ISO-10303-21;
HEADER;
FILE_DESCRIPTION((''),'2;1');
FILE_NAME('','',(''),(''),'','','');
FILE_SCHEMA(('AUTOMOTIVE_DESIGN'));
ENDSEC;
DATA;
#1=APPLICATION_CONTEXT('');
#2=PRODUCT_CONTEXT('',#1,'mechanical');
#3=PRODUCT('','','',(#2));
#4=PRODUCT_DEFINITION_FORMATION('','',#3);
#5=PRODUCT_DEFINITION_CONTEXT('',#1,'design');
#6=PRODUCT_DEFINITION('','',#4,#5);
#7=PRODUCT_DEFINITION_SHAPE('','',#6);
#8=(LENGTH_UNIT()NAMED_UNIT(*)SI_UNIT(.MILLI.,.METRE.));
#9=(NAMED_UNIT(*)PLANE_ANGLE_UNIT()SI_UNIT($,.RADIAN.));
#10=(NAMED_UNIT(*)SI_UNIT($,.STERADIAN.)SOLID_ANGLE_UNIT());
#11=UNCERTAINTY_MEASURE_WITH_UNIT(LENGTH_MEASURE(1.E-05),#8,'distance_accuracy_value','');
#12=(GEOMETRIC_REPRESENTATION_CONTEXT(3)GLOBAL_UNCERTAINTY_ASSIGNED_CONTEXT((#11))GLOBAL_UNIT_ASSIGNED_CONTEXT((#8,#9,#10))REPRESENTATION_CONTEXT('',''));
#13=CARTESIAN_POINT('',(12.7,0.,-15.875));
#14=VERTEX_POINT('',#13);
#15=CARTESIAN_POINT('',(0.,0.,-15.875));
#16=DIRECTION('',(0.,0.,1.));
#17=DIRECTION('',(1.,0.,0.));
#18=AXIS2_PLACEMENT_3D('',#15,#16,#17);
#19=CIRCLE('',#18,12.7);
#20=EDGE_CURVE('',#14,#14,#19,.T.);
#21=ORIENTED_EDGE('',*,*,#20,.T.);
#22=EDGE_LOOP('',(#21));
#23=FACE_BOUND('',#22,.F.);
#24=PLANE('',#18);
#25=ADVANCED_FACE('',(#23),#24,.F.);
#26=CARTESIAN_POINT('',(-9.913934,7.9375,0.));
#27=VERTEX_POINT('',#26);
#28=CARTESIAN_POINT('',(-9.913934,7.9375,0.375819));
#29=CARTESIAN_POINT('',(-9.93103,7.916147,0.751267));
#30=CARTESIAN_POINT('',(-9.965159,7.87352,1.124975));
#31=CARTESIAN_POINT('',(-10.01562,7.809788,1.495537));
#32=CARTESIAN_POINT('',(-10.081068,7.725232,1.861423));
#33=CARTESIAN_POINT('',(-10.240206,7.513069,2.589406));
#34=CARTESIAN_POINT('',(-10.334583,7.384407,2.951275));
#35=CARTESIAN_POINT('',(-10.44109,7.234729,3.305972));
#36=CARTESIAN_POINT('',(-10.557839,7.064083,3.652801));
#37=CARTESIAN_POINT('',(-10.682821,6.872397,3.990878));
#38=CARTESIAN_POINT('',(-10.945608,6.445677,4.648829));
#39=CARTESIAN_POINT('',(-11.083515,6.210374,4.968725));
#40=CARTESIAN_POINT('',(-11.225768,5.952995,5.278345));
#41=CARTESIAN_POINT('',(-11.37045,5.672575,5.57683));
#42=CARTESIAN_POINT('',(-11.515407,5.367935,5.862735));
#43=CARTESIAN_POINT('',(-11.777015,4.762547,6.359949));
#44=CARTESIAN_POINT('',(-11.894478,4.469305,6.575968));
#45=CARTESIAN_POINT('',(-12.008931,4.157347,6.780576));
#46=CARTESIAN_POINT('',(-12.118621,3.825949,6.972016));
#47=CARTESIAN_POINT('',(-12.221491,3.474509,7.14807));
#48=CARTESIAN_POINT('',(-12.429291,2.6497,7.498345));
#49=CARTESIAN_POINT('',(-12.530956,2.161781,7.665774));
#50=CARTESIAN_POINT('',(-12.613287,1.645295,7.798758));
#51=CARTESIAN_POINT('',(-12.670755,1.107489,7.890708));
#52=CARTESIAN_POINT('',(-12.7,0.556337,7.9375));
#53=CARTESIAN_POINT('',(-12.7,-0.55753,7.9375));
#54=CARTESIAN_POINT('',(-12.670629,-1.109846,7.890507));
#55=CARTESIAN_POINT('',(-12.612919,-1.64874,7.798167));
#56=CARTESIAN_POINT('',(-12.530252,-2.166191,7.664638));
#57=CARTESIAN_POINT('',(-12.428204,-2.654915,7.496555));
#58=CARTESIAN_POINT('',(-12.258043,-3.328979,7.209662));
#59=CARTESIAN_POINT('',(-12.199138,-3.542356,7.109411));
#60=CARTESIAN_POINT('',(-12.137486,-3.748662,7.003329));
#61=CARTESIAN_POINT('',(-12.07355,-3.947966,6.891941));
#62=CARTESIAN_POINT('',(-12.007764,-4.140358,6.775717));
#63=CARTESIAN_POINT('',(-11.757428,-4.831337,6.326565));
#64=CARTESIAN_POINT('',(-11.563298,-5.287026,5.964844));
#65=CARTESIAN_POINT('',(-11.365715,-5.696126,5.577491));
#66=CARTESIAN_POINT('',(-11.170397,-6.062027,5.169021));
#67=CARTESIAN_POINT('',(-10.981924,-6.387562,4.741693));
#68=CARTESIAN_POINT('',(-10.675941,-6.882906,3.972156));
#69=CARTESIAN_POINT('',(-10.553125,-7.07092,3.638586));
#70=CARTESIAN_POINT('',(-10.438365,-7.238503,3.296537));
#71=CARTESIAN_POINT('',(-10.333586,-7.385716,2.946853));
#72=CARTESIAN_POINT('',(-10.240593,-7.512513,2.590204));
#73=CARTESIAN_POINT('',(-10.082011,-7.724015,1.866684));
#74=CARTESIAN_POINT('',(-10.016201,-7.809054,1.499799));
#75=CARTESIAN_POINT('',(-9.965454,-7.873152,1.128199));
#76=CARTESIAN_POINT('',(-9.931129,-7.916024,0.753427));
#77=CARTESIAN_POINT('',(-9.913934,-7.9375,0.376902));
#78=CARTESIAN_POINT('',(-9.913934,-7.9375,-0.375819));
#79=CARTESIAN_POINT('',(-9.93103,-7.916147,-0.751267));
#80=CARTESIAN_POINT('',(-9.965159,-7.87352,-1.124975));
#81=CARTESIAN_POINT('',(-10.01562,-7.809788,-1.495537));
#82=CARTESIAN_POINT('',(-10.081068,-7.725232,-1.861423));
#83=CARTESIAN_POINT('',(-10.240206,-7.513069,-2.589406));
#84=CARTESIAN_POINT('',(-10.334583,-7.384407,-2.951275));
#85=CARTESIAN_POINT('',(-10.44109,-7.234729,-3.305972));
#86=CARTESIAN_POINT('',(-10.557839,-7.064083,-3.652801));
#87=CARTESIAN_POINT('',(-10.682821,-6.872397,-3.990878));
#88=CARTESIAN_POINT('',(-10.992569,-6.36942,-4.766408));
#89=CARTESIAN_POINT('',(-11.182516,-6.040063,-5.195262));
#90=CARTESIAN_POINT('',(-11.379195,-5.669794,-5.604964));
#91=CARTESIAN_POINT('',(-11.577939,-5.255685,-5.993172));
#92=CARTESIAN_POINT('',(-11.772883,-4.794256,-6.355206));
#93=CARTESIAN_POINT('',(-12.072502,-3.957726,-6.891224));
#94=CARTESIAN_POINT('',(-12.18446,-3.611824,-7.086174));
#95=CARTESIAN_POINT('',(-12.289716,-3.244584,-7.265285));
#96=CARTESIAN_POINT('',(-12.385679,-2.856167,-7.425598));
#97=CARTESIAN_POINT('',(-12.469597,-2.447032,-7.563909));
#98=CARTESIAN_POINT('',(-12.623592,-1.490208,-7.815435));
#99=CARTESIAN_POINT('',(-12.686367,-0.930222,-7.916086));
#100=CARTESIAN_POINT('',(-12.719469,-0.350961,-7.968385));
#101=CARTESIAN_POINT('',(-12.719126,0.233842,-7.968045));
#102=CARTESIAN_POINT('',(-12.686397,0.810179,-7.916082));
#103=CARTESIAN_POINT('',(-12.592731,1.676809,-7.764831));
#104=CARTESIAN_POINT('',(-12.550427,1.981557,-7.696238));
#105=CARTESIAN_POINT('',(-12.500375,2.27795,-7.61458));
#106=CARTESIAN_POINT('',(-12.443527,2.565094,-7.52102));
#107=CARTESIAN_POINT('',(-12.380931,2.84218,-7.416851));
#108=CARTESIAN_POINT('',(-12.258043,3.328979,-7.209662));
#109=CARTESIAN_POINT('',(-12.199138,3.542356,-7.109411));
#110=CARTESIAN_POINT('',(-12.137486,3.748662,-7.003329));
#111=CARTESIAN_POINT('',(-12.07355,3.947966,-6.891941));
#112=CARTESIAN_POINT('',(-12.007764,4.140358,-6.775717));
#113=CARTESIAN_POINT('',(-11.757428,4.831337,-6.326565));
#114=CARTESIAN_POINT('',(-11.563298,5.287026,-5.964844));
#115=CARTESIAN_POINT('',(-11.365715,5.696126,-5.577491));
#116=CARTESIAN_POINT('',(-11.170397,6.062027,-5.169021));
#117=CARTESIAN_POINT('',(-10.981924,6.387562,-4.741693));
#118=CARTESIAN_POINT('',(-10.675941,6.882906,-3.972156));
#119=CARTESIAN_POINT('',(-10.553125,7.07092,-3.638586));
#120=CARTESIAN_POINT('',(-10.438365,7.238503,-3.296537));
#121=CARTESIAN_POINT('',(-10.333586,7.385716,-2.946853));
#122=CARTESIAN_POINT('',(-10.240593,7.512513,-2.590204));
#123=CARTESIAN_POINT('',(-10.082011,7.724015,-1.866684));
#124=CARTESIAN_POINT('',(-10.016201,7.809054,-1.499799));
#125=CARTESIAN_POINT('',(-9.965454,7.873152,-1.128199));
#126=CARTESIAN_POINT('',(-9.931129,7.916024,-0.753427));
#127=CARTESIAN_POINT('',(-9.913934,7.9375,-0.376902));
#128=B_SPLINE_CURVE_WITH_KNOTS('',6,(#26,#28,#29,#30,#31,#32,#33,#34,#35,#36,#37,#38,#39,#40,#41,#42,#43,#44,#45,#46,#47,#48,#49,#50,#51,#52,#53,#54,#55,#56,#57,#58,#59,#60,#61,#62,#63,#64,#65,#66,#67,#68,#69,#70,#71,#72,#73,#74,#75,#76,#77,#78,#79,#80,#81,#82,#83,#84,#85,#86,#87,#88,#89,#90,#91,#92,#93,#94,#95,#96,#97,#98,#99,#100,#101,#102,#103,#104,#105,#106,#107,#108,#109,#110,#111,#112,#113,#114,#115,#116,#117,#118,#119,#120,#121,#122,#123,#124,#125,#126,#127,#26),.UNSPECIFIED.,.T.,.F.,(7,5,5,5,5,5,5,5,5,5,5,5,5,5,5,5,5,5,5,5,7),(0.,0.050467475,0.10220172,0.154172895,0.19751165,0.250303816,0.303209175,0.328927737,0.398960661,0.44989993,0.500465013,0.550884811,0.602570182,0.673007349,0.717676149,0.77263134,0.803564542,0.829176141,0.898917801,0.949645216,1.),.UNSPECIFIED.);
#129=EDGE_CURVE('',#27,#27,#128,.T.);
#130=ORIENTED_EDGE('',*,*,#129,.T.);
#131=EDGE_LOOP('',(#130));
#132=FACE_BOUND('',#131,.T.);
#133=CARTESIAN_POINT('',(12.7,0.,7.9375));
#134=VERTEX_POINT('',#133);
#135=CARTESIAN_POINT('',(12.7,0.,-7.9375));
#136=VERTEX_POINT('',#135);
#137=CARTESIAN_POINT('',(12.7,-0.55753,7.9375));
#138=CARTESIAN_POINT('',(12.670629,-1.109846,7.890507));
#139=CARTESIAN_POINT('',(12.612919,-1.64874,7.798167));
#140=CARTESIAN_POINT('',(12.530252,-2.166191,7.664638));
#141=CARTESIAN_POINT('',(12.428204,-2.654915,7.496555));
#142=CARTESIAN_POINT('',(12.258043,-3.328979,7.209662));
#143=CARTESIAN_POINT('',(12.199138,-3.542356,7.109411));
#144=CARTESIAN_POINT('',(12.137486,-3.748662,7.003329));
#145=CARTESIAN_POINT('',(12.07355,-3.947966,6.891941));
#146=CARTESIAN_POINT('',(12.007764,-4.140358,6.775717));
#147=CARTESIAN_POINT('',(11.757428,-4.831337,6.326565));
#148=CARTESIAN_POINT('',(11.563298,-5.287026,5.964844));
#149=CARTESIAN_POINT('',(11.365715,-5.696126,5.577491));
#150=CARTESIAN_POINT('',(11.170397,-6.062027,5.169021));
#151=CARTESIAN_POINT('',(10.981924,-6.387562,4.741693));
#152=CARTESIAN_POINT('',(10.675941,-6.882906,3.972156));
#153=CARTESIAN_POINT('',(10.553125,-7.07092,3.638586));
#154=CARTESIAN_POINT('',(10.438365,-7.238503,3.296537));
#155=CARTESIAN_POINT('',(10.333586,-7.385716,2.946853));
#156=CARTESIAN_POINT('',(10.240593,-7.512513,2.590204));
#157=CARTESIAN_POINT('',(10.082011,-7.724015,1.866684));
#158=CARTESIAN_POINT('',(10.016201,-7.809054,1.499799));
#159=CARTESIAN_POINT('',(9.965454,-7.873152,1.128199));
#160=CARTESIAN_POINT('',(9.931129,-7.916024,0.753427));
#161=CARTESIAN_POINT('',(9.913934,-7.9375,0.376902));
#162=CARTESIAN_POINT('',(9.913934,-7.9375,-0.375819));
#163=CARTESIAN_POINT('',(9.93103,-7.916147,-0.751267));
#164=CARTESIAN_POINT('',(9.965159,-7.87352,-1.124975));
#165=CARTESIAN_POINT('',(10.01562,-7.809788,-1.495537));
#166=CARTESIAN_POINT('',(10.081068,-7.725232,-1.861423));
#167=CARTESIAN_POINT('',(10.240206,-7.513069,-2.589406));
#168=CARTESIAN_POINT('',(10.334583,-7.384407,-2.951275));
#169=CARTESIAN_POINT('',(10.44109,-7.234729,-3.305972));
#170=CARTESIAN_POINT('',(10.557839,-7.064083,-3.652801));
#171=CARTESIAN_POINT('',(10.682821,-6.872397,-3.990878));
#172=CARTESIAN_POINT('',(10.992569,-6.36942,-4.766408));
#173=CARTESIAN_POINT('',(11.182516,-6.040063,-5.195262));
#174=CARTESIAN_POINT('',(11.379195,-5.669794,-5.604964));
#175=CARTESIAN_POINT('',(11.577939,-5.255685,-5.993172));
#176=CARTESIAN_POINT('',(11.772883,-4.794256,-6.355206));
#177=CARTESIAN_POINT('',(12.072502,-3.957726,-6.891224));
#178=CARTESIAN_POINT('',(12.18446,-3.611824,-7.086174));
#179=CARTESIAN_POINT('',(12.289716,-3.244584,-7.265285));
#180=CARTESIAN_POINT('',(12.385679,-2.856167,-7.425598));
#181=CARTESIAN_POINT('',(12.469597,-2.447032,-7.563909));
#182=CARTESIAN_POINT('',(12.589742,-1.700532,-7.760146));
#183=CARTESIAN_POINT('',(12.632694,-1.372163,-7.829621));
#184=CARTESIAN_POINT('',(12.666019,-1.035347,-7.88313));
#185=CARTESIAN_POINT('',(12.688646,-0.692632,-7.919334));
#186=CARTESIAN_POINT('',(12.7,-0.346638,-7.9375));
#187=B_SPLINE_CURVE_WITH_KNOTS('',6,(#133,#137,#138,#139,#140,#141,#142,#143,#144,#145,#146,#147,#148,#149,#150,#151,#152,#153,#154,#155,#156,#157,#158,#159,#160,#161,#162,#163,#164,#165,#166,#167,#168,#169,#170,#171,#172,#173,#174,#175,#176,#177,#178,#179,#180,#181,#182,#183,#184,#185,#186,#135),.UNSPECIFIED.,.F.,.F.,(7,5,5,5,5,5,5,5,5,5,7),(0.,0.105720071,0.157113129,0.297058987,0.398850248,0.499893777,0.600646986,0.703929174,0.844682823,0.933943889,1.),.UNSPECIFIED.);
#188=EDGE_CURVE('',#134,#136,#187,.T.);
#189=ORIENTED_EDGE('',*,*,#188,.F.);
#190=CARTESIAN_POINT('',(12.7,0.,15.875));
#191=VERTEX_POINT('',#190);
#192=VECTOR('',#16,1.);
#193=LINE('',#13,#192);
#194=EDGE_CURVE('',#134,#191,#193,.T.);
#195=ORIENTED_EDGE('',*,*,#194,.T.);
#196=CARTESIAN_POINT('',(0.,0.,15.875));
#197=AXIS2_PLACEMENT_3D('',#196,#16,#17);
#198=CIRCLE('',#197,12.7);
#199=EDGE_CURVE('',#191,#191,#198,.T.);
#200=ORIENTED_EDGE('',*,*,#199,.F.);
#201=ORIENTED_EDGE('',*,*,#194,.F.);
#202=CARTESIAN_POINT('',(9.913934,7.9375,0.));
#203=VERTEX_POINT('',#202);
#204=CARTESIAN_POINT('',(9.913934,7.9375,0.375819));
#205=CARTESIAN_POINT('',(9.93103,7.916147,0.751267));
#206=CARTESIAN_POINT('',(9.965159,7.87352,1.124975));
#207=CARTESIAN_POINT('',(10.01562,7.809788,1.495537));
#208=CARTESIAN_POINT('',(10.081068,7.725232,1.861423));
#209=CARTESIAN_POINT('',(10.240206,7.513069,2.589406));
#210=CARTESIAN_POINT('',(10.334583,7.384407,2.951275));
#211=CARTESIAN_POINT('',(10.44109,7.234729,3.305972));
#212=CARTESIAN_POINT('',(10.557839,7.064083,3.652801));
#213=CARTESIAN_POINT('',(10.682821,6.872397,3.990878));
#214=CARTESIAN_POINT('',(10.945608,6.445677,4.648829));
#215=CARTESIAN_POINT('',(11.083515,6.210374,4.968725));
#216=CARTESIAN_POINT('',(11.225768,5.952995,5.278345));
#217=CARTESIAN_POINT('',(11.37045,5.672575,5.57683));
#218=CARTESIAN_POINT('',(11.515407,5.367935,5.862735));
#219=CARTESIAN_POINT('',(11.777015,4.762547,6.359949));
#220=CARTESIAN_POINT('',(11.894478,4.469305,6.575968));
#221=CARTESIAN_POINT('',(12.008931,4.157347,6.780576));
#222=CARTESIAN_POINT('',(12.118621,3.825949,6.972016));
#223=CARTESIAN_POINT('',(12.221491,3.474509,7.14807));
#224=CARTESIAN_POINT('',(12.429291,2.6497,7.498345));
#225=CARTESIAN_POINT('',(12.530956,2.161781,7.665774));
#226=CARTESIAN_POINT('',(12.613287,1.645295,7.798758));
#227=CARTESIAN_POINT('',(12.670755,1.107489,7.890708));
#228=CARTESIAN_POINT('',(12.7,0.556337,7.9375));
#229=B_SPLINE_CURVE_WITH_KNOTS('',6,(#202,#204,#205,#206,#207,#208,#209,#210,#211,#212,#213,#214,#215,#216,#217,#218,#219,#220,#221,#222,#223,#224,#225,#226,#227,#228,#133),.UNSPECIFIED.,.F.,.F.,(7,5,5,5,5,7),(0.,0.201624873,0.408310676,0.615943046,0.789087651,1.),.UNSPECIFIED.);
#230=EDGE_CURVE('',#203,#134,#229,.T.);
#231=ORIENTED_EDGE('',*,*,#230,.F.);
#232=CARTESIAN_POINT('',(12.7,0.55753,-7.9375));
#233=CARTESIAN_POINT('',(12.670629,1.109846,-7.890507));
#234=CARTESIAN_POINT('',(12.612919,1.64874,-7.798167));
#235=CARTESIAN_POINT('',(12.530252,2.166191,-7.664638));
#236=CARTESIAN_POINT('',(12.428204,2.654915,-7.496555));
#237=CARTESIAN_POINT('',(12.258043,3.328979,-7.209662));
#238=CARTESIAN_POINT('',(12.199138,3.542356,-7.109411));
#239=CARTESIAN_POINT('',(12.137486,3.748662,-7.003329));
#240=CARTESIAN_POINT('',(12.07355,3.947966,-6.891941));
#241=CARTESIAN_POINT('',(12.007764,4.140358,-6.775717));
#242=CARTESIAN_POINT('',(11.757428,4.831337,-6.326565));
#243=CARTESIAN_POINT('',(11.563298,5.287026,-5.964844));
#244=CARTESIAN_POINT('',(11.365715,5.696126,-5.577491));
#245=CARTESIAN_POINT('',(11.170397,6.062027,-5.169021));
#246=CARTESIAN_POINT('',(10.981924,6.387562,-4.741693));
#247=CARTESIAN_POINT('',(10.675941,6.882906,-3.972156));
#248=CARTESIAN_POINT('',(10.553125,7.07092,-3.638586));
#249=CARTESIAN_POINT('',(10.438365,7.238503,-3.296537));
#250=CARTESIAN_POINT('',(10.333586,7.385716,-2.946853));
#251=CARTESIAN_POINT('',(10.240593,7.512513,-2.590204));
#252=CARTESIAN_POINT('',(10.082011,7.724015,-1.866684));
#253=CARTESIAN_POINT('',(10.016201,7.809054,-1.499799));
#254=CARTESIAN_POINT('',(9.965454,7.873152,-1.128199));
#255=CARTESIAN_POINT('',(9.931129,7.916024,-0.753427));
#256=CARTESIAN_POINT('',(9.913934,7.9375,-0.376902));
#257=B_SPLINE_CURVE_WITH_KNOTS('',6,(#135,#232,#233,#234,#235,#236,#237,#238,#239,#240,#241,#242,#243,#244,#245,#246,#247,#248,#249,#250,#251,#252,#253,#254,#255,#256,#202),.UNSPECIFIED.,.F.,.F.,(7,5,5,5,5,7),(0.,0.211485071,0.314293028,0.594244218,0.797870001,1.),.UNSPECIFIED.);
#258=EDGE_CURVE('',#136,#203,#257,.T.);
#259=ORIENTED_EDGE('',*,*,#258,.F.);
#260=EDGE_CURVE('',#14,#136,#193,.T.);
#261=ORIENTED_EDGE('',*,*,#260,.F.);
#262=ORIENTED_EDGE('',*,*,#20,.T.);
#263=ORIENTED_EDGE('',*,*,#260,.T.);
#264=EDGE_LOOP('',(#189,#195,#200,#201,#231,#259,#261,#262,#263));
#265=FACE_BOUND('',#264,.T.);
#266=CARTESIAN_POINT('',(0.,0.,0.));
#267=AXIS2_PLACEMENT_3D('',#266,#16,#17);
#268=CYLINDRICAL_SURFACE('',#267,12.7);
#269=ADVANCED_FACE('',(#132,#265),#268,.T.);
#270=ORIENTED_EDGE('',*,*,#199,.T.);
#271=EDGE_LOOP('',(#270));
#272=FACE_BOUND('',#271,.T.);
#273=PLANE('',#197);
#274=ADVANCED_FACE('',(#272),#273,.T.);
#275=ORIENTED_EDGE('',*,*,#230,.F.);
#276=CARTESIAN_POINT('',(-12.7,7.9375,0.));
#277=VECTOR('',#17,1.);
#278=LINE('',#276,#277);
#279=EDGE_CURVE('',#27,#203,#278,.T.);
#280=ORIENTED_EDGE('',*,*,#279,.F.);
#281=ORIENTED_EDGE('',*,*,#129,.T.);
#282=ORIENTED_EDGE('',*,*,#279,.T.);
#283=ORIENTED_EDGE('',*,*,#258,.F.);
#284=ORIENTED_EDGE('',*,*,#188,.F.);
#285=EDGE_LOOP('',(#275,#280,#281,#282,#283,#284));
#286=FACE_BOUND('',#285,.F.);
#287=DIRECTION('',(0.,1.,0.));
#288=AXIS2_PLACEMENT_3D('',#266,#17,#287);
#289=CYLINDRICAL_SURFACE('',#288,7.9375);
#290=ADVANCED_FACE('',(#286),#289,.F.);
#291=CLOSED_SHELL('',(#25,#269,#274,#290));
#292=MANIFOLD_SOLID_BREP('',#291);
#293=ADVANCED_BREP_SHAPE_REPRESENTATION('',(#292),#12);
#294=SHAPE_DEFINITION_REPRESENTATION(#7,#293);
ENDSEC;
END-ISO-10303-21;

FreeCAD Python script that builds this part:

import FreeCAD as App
import Part
import Sketcher

V = App.Vector
Q = App.Units.Quantity

doc = App.newDocument("Part")
body = doc.addObject("PartDesign::Body", "Body")

sketch1 = body.newObject("Sketcher::SketchObject", "Sketch")
sketch1.AttachmentSupport = (doc.getObject("XY_Plane"), [""])
sketch1.MapMode = "FlatFace"
sketch1.addGeometry(Part.Circle(V(0, 0, 0), V(0, 0, 1), 12.7), False)
sketch1.addConstraint([
    Sketcher.Constraint("Coincident", 0, 3, -1, 1),
    Sketcher.Constraint("Diameter", 0, Q("1 in")),
])
pad1 = body.newObject("PartDesign::Pad", "Pad")
pad1.Profile = sketch1
pad1.Length = Q("1.25 in")
pad1.Midplane = True

sketch2 = body.newObject("Sketcher::SketchObject", "Sketch001")
sketch2.AttachmentSupport = (doc.getObject("YZ_Plane"), [""])
sketch2.MapMode = "FlatFace"
sketch2.addGeometry(Part.Circle(V(0, 0, 0), V(0, 0, 1), 7.9375), False)
sketch2.addConstraint([
    Sketcher.Constraint("Coincident", 0, 3, -1, 1),
    Sketcher.Constraint("Diameter", 0, Q("0.625 in")),
])
pocket1 = body.newObject("PartDesign::Pocket", "Pocket")
pocket1.Profile = sketch2
pocket1.Length = Q("1 in")
pocket1.Midplane = True

doc.recompute()
